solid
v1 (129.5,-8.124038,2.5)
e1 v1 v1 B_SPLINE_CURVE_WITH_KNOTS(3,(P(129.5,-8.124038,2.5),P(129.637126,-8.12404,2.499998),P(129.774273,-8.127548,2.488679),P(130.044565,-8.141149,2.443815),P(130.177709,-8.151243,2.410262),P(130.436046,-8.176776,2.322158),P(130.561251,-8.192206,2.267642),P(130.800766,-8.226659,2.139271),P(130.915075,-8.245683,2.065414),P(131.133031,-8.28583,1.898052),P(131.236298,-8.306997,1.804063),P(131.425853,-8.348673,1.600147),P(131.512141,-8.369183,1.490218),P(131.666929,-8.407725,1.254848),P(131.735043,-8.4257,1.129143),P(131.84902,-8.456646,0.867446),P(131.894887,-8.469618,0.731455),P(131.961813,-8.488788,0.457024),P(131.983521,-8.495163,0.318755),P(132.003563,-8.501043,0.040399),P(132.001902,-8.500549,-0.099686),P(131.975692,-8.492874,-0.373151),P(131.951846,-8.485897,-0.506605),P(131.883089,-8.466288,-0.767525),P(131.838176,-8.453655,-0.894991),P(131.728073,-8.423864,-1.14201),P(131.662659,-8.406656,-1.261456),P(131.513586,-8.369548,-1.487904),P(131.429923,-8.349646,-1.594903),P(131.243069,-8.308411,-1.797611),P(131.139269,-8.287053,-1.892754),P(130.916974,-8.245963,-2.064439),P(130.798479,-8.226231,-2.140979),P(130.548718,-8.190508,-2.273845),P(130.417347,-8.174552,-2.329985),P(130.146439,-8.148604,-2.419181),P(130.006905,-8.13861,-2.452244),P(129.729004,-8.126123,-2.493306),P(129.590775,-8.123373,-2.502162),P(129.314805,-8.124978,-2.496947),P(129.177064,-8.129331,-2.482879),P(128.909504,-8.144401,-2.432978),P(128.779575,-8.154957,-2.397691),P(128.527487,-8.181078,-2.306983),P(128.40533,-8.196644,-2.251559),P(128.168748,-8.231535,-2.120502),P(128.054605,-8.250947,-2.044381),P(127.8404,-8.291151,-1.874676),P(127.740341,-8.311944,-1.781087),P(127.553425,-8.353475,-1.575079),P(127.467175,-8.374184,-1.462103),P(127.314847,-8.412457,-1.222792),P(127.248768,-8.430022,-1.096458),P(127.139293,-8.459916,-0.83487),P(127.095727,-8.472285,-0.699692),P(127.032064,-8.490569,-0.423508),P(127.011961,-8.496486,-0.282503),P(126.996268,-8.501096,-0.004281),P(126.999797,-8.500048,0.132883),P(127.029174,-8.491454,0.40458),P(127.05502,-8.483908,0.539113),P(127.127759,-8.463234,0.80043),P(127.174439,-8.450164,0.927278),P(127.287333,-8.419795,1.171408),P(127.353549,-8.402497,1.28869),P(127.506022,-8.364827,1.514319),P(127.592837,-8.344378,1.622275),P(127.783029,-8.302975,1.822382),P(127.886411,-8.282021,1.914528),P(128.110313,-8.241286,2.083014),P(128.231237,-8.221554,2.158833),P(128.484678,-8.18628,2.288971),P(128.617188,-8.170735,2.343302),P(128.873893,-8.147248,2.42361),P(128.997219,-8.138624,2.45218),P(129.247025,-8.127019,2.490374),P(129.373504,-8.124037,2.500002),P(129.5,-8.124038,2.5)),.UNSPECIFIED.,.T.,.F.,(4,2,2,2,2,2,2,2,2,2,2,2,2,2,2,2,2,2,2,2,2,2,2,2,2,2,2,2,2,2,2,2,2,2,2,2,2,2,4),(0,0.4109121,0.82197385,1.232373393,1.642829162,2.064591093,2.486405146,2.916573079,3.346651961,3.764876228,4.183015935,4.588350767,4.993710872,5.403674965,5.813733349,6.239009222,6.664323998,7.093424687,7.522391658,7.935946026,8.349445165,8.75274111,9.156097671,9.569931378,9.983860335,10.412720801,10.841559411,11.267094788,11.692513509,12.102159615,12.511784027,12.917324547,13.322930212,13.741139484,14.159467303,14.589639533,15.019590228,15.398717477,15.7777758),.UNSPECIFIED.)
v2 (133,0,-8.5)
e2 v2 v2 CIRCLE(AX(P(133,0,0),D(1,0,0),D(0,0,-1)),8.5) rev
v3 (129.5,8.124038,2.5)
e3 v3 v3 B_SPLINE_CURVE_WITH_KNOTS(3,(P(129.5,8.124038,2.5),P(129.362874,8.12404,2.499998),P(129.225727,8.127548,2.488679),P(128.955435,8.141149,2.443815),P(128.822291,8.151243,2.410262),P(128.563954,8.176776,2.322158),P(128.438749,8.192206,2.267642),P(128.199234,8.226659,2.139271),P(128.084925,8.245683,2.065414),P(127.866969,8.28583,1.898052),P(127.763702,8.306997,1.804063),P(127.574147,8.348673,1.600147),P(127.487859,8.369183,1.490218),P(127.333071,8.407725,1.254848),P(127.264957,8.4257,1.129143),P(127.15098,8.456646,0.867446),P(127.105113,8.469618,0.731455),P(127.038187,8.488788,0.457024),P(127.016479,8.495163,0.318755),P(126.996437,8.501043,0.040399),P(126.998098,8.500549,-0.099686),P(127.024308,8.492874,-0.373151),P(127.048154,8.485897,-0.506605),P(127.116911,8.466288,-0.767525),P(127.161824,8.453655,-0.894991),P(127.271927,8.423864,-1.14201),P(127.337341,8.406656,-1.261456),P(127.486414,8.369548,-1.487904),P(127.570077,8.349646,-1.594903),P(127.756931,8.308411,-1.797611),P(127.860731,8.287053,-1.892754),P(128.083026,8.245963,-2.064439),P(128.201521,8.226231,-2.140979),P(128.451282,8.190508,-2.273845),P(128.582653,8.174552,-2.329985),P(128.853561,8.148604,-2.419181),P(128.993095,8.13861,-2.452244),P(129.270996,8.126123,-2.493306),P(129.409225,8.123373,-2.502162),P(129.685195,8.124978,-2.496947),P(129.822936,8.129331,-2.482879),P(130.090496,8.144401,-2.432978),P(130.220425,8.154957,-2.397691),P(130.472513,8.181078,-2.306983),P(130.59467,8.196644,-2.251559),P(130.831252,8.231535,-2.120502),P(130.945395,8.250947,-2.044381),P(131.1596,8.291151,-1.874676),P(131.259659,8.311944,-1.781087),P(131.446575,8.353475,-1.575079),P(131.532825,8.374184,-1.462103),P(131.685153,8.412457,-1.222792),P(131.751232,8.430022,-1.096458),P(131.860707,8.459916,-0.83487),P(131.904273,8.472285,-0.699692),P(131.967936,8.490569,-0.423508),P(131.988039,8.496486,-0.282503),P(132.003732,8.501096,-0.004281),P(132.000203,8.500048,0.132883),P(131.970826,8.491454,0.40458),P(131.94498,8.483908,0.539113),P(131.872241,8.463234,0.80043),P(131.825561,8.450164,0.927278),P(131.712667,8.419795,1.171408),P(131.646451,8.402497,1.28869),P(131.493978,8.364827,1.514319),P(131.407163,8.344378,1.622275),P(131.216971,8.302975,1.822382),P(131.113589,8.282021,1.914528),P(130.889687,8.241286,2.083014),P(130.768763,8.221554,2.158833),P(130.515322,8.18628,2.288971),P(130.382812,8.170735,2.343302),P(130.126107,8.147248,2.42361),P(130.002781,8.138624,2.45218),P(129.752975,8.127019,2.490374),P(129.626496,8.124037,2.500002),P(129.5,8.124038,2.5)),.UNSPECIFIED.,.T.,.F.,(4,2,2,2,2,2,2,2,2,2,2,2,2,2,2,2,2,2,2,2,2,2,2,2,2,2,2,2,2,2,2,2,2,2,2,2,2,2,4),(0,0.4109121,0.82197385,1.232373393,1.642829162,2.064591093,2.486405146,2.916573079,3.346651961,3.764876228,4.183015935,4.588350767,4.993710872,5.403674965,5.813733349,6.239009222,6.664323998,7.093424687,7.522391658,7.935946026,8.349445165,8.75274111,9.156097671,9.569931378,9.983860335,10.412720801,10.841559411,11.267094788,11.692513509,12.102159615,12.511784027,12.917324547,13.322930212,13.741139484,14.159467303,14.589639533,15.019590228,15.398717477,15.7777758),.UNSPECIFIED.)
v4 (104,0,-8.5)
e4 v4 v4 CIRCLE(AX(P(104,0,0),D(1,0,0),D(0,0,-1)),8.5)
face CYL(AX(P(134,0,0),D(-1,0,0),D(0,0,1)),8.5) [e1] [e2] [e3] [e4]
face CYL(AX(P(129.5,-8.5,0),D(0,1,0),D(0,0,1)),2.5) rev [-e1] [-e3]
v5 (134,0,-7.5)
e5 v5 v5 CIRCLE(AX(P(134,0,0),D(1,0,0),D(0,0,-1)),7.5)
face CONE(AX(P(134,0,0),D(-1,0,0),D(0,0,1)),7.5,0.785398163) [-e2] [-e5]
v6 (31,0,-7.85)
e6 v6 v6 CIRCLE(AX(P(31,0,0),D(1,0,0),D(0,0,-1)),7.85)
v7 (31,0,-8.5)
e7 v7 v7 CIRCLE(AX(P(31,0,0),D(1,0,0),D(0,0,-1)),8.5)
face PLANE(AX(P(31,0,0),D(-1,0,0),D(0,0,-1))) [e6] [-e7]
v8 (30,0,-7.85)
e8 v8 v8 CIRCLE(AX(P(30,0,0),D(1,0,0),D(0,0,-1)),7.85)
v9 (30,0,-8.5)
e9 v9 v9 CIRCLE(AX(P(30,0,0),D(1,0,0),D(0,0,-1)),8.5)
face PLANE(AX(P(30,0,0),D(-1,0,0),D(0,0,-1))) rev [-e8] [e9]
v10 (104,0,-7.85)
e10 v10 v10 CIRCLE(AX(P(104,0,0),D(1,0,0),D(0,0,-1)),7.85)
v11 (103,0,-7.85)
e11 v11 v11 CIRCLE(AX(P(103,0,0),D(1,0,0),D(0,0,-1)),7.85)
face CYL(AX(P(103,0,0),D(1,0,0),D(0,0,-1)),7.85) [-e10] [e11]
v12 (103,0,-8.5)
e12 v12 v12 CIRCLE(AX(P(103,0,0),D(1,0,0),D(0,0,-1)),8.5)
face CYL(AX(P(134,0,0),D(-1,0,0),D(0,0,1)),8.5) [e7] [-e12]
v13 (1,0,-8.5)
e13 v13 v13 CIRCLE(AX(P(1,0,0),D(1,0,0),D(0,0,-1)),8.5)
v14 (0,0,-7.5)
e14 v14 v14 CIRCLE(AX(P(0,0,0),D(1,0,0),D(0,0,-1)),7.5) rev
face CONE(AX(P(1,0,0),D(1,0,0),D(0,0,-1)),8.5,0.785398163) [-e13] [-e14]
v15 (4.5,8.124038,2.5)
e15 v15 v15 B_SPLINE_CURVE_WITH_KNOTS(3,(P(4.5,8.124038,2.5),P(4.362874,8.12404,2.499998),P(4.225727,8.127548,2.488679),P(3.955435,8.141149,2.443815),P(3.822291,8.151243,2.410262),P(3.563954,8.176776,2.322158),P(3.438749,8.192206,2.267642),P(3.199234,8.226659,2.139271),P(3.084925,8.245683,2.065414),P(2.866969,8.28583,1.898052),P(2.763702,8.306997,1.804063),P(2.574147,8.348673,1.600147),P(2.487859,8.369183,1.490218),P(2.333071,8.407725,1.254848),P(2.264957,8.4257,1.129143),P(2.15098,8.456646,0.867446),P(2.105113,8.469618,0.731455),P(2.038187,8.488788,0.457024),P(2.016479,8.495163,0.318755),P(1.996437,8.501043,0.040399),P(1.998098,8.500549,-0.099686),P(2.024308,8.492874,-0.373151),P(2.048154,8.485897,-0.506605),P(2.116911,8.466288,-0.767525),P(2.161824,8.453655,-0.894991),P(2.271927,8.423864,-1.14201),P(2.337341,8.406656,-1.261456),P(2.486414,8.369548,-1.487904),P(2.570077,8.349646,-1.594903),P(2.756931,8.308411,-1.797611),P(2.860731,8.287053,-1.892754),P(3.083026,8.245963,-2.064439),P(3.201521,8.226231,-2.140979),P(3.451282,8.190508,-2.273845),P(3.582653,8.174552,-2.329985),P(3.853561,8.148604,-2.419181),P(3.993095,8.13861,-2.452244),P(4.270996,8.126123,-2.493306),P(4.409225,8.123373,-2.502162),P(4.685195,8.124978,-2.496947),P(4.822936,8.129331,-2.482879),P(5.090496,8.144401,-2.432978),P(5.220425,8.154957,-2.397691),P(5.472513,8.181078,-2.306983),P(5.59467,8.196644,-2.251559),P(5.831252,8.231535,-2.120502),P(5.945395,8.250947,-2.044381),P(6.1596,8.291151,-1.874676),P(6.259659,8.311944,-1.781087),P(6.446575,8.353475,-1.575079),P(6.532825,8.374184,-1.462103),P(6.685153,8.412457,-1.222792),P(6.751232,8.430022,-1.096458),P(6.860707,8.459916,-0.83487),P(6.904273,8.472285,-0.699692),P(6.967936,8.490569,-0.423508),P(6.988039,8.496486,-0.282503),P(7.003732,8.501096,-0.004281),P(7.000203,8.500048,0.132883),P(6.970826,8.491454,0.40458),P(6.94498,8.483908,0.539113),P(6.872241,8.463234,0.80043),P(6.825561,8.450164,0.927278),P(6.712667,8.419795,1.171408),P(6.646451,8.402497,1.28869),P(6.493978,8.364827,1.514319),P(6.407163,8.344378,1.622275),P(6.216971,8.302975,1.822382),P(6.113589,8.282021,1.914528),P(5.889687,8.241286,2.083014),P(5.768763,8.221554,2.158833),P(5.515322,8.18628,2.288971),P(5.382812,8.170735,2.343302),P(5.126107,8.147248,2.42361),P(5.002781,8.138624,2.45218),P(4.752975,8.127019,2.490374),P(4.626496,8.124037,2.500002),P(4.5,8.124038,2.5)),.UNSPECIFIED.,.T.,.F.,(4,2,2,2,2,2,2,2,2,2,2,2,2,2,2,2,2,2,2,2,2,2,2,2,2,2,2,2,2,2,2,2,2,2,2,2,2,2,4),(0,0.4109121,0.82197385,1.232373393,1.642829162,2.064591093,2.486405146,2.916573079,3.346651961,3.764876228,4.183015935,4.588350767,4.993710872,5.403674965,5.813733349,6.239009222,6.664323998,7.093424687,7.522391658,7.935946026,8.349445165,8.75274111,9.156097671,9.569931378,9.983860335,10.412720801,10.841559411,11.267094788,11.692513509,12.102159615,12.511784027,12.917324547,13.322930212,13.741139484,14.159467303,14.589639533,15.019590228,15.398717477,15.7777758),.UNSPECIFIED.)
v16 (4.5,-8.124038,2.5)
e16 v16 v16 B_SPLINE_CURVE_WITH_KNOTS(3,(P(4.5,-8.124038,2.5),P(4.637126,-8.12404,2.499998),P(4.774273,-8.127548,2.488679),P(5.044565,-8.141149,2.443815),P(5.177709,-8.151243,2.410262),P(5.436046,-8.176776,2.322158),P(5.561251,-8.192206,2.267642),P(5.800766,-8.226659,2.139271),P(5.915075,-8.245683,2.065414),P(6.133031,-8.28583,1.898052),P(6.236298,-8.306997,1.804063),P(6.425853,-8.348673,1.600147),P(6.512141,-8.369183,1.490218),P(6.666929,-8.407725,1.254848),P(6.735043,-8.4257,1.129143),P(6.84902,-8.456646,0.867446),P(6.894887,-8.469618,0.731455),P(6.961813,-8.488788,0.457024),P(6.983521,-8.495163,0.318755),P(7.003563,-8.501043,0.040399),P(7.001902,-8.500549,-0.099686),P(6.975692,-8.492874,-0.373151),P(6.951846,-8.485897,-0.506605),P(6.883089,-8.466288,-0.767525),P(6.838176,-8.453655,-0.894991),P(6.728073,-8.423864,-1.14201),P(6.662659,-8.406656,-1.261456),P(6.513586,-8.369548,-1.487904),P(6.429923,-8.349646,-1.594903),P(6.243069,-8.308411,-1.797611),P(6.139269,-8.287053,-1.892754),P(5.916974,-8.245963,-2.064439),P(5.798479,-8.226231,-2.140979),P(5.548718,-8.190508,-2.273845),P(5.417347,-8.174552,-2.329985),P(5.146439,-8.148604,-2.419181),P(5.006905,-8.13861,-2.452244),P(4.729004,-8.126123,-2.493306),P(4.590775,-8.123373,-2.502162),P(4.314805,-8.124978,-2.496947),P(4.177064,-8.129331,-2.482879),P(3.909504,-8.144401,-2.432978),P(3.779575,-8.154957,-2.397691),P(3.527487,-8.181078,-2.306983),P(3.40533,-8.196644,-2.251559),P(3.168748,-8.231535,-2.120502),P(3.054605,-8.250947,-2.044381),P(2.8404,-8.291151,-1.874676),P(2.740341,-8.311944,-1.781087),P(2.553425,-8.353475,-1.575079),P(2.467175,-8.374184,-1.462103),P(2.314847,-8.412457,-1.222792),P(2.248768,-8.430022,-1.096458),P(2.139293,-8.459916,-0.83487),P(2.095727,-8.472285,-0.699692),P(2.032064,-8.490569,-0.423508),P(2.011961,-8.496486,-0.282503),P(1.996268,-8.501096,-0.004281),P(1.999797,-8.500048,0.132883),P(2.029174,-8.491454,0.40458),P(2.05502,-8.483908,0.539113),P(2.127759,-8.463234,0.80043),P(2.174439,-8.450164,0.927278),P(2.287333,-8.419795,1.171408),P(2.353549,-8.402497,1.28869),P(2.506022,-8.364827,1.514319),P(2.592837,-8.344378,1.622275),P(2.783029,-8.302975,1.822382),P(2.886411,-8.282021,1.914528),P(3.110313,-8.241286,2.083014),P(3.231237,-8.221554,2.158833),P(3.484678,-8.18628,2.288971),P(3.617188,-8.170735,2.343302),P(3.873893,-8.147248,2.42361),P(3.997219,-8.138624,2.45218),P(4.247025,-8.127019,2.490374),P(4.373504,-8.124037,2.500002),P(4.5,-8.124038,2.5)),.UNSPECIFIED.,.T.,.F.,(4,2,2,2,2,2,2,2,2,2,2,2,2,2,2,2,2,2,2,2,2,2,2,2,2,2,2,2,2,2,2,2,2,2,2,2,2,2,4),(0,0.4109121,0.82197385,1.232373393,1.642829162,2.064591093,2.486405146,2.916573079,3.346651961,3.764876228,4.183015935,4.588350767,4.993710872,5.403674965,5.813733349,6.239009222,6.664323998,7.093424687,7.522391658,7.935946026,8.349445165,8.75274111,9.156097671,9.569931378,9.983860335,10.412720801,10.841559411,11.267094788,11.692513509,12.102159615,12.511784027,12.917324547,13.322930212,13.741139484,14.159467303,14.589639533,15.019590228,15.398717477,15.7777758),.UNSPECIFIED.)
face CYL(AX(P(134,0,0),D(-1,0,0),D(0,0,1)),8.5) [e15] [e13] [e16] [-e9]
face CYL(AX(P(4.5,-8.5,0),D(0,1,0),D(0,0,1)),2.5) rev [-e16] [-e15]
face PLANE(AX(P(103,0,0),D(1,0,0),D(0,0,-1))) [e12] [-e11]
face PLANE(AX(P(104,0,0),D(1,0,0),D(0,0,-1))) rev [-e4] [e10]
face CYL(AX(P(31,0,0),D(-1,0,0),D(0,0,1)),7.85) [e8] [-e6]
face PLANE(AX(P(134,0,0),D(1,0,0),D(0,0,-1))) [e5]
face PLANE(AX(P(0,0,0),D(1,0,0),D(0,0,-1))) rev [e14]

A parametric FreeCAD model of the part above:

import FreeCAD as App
import Part
import Sketcher
Q = App.Units.Quantity


def edges_at(feature, points):
    """Names of the edges that pass closest to the given points."""
    edges = feature.Shape.Edges
    near = lambda p: min(range(len(edges)), key=lambda i: edges[i].distToShape(Part.Vertex(*p))[0])
    return sorted({f"Edge{near(p) + 1}" for p in points})

doc = App.newDocument("Part")
params = doc.addObject("Spreadsheet::Sheet", "Params")
for row, (alias, value) in enumerate([
    ("sketch1_diameter", "17 mm"),
    ("pad1_length", "134 mm"),
    ("chamfer_size", "1 mm"),
    ("sketch2_diameter", "5 mm"),
    ("sketch3_diameter", "17 mm"),
    ("sketch3_diameter2", "15.7 mm"),
    ("pocket2_length", "1 mm"),
], start=1):
    params.set(f"A{row}", alias)
    params.set(f"B{row}", "=" + value)
    params.setAlias(f"B{row}", alias)

body = doc.addObject("PartDesign::Body", "Body")

# Sketch on YZ plane
sketch1 = doc.addObject("Sketcher::SketchObject", "Sketch")
body.addObject(sketch1)
sketch1.AttachmentSupport = (doc.YZ_Plane, [""])
sketch1.MapMode = "FlatFace"
sketch1.addGeometry(Part.Circle(App.Vector(0, 0, 0), App.Vector(0, 0, 1), 8), False)
sketch1.addConstraint([
    Sketcher.Constraint("Coincident", 0, 3, -1, 1),
    Sketcher.Constraint("Diameter", 0, Q("17 mm")),
])
sketch1.setExpression("Constraints[1]", "Params.sketch1_diameter")
pad1 = doc.addObject("PartDesign::Pad", "Pad")
body.addObject(pad1)
pad1.Profile = sketch1
pad1.setExpression("Length", "Params.pad1_length")
doc.recompute()

chamfer = doc.addObject("PartDesign::Chamfer", "Chamfer")
body.addObject(chamfer)
chamfer.Base = (pad1, edges_at(pad1, [(0, 0, 8.5), (134, 0, 8.5)]))
chamfer.setExpression("Size", "Params.chamfer_size")

# Sketch on XZ plane
sketch2 = doc.addObject("Sketcher::SketchObject", "Sketch001")
body.addObject(sketch2)
sketch2.AttachmentSupport = (doc.XZ_Plane, [""])
sketch2.MapMode = "FlatFace"
sketch2.addGeometry([
    Part.Circle(App.Vector(4.5, 0, 0), App.Vector(0, 0, 1), 2.5),
    Part.Circle(App.Vector(129.5, 0, 0), App.Vector(0, 0, 1), 2.5),
], False)
sketch2.addConstraint([
    Sketcher.Constraint("Equal", 0, 1),
    Sketcher.Constraint("PointOnObject", 0, 3, -1),
    Sketcher.Constraint("PointOnObject", 1, 3, -1),
    Sketcher.Constraint("Diameter", 0, Q("5 mm")),
    Sketcher.Constraint("DistanceX", 0, 3, 1, 3, Q("125 mm")),
    Sketcher.Constraint("DistanceX", -1, 1, 0, 3, Q("4.5 mm")),
])
sketch2.setExpression("Constraints[3]", "Params.sketch2_diameter")
pocket1 = doc.addObject("PartDesign::Pocket", "Pocket")
body.addObject(pocket1)
pocket1.Profile = sketch2
pocket1.Type = "ThroughAll"
pocket1.Midplane = True

# Sketch on YZ plane
sketch3 = doc.addObject("Sketcher::SketchObject", "Sketch002")
body.addObject(sketch3)
sketch3.AttachmentSupport = (doc.YZ_Plane, [""])
sketch3.MapMode = "FlatFace"
sketch3.AttachmentOffset = App.Placement(App.Vector(0, 0, 104), App.Rotation())
sketch3.addGeometry([
    Part.Circle(App.Vector(0, 0, 0), App.Vector(0, 0, 1), 8),
    Part.Circle(App.Vector(0, 0, 0), App.Vector(0, 0, 1), 8),
], False)
sketch3.addConstraint([
    Sketcher.Constraint("Coincident", 0, 3, -1, 1),
    Sketcher.Constraint("Coincident", 1, 3, -1, 1),
    Sketcher.Constraint("Diameter", 0, Q("17 mm")),
    Sketcher.Constraint("Diameter", 1, Q("15.7 mm")),
])
sketch3.setExpression("Constraints[2]", "Params.sketch3_diameter")
sketch3.setExpression("Constraints[3]", "Params.sketch3_diameter2")
pocket2 = doc.addObject("PartDesign::Pocket", "Pocket001")
body.addObject(pocket2)
pocket2.Profile = sketch3
pocket2.setExpression("Length", "Params.pocket2_length")
doc.recompute()

datumplane = doc.addObject("PartDesign::Plane", "DatumPlane")
body.addObject(datumplane)
datumplane.AttachmentSupport = (doc.YZ_Plane, [""])
datumplane.MapMode = "FlatFace"
datumplane.AttachmentOffset = App.Placement(App.Vector(0, 0, 67), App.Rotation())
mirrored = doc.addObject("PartDesign::Mirrored", "Mirrored")
body.addObject(mirrored)
mirrored.Originals = [pocket2]
mirrored.MirrorPlane = (datumplane, [""])
body.Tip = mirrored

doc.recompute()
